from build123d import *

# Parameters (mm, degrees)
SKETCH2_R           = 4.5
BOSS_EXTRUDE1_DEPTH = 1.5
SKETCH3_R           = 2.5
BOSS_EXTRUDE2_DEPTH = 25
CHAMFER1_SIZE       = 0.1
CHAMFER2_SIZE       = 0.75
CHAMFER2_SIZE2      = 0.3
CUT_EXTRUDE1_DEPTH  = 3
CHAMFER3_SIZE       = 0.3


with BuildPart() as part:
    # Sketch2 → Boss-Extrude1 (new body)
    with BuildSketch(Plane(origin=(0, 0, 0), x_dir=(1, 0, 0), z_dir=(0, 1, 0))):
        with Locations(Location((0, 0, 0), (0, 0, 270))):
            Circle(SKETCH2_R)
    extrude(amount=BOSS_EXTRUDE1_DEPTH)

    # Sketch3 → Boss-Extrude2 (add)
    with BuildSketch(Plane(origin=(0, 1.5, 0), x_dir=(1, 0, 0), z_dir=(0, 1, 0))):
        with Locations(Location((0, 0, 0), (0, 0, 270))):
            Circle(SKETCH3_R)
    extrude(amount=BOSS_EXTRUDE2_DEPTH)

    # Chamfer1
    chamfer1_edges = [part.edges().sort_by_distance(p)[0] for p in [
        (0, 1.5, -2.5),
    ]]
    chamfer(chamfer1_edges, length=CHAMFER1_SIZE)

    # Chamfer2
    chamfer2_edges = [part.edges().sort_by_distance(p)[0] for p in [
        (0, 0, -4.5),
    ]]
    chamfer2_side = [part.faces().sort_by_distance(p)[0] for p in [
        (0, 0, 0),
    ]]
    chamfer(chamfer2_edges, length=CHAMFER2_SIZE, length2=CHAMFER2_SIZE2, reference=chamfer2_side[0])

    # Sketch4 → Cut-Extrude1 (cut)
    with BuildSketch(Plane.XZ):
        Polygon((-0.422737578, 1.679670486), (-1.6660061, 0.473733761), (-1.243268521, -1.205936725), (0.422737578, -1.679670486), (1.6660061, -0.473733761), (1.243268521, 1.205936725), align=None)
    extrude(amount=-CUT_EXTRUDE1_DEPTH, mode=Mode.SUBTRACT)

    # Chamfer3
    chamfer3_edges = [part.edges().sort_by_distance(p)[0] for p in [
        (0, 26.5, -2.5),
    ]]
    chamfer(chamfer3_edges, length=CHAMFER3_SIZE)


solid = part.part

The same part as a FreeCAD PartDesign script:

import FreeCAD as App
import Part
import Sketcher


def edges_at(feature, points):
    """Names of the edges that pass closest to the given points."""
    edges = feature.Shape.Edges
    near = lambda p: min(range(len(edges)), key=lambda i: edges[i].distToShape(Part.Vertex(*p))[0])
    return sorted({f"Edge{near(p) + 1}" for p in points})

doc = App.newDocument("Part")
body = doc.addObject("PartDesign::Body", "Body")

# Sketch on XZ plane
sketch1 = body.newObject("Sketcher::SketchObject", "Sketch")
sketch1.AttachmentSupport = (doc.getObject("XZ_Plane"), [""])
sketch1.MapMode = "FlatFace"
sketch1.addGeometry(Part.Circle(App.Vector(0, 0, 0), App.Vector(0, 0, 1), 4.5), False)
sketch1.addConstraint([
    Sketcher.Constraint("Coincident", 0, 3, -1, 1),
    Sketcher.Constraint("Diameter", 0, 9.0),
])
pad1 = body.newObject("PartDesign::Pad", "Pad")
pad1.Profile = sketch1
pad1.Length = 1.5
pad1.Reversed = True

# Sketch on XZ plane
sketch2 = body.newObject("Sketcher::SketchObject", "Sketch001")
sketch2.AttachmentSupport = (doc.getObject("XZ_Plane"), [""])
sketch2.MapMode = "FlatFace"
sketch2.AttachmentOffset = App.Placement(App.Vector(0, 0, -1.5), App.Rotation())
sketch2.addGeometry(Part.Circle(App.Vector(0, 0, 0), App.Vector(0, 0, 1), 2.5), False)
sketch2.addConstraint([
    Sketcher.Constraint("Coincident", 0, 3, -1, 1),
    Sketcher.Constraint("Diameter", 0, 5.0),
])
pad2 = body.newObject("PartDesign::Pad", "Pad001")
pad2.Profile = sketch2
pad2.Length = 25
pad2.Reversed = True
doc.recompute()

chamfer = body.newObject("PartDesign::Chamfer", "Chamfer")
chamfer.Base = (pad2, edges_at(pad2, [(0, 1.5, -2.5)]))
chamfer.Size = 0.1
doc.recompute()

chamfer2 = body.newObject("PartDesign::Chamfer", "Chamfer001")
chamfer2.Base = (chamfer, edges_at(chamfer, [(0, 0, -4.5)]))
chamfer2.ChamferType = "Two distances"
chamfer2.Size = 0.75
chamfer2.Size2 = 0.3
chamfer2.FlipDirection = True

# Sketch on XZ plane
sketch3 = body.newObject("Sketcher::SketchObject", "Sketch002")
sketch3.AttachmentSupport = (doc.getObject("XZ_Plane"), [""])
sketch3.MapMode = "FlatFace"
sketch3.addGeometry([
    Part.LineSegment(App.Vector(-0.4, 1.7, 0), App.Vector(-1.7, 0.5, 0)),  # 0
    Part.LineSegment(App.Vector(-1.7, 0.5, 0), App.Vector(-1.2, -1.2, 0)),  # 1
    Part.LineSegment(App.Vector(-1.2, -1.2, 0), App.Vector(0.4, -1.7, 0)),  # 2
    Part.LineSegment(App.Vector(0.4, -1.7, 0), App.Vector(1.7, -0.5, 0)),  # 3
    Part.LineSegment(App.Vector(1.7, -0.5, 0), App.Vector(1.2, 1.2, 0)),  # 4
    Part.LineSegment(App.Vector(1.2, 1.2, 0), App.Vector(-0.4, 1.7, 0)),  # 5
], False)
sketch3.addConstraint([
    Sketcher.Constraint("Coincident", 0, 2, 1, 1),
    Sketcher.Constraint("Coincident", 1, 2, 2, 1),
    Sketcher.Constraint("Coincident", 2, 2, 3, 1),
    Sketcher.Constraint("Coincident", 3, 2, 4, 1),
    Sketcher.Constraint("Coincident", 4, 2, 5, 1),
    Sketcher.Constraint("Coincident", 5, 2, 0, 1),
    Sketcher.Constraint("Symmetric", 0, 2, 3, 2, -1, 1),
    Sketcher.Constraint("Symmetric", 1, 2, 4, 2, -1, 1),
    Sketcher.Constraint("Symmetric", 2, 2, 5, 2, -1, 1),
    Sketcher.Constraint("Equal", 0, 1),
    Sketcher.Constraint("Equal", 1, 2),
    Sketcher.Constraint("Distance", 0, 1.732051),
    Sketcher.Constraint("DistanceX", 1, 2, -1, 1, 1.243269),
    Sketcher.Constraint("DistanceY", 2, 2, -1, 1, 1.67967),
    Sketcher.Constraint("DistanceY", 1, 2, 0, 2, 1.67967),
])
pocket1 = body.newObject("PartDesign::Pocket", "Pocket")
pocket1.Profile = sketch3
pocket1.Length = 3
doc.recompute()

chamfer3 = body.newObject("PartDesign::Chamfer", "Chamfer002")
chamfer3.Base = (pocket1, edges_at(pocket1, [(0, 26.5, -2.5)]))
chamfer3.Size = 0.3

doc.recompute()
